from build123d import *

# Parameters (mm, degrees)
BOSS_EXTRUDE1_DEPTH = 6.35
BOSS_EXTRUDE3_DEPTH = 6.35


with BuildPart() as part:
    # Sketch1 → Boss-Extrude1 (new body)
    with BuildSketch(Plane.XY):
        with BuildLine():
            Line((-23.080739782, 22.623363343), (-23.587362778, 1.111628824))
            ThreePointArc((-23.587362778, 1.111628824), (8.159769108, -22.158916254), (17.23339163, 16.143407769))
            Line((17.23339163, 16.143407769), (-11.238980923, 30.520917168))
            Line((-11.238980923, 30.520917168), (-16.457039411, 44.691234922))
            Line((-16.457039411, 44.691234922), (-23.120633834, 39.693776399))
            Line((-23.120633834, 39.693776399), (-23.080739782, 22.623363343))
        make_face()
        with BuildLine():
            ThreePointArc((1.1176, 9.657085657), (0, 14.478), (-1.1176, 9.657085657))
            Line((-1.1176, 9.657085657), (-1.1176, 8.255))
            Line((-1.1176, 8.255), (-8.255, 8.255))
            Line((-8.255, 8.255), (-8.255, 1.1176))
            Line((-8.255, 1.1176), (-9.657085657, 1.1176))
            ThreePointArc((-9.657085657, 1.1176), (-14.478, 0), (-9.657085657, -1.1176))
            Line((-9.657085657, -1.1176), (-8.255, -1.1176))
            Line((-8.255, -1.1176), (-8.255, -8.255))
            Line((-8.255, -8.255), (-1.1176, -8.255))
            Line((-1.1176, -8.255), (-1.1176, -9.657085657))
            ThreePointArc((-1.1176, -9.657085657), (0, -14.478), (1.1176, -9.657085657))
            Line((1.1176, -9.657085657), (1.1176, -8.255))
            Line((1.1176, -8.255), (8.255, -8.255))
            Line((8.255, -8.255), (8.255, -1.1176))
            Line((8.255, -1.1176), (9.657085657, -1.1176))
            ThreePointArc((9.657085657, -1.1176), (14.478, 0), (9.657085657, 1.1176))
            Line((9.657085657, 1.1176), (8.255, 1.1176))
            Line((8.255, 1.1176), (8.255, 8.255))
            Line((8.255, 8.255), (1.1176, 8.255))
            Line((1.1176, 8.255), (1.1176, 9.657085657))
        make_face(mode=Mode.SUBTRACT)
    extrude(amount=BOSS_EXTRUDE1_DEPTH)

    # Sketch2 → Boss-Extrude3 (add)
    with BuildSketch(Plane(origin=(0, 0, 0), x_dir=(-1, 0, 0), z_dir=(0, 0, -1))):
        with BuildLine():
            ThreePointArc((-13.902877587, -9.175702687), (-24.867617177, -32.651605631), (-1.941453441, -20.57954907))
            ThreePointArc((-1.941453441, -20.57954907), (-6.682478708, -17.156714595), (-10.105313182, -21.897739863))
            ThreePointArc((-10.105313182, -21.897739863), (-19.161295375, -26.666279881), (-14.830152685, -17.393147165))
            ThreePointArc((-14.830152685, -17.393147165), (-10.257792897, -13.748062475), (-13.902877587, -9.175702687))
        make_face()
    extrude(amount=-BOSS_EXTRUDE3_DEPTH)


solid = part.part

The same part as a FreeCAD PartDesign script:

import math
import FreeCAD as App
import Part
import Sketcher
from FreeCAD import Vector
Q = App.Units.Quantity

doc = App.newDocument("Part")
params = doc.addObject("Spreadsheet::Sheet", "Params")
for row, (alias, value) in enumerate([
    ("sketch1_radius", "0.1 in"),
    ("sketch1_width", "0.281 in"),
    ("pad1_length", "0.25 in"),
    ("pad2_length", "0.25 in"),
], start=1):
    params.set(f"A{row}", alias)
    params.set(f"B{row}", "=" + value)
    params.setAlias(f"B{row}", alias)

body = doc.addObject("PartDesign::Body", "Body")

# Sketch on XY plane
sketch1 = body.newObject("Sketcher::SketchObject", "Sketch")
sketch1.AttachmentSupport = (doc.getObject("XY_Plane"), [""])
sketch1.MapMode = "FlatFace"
sketch1.addGeometry([
    Part.LineSegment(Vector(-23.1, 22.6, 0), Vector(-23.6, 1.1, 0)),  # 0
    Part.ArcOfCircle(Part.Circle(Vector(0, 0, 0), Vector(0, 0, 1), 23.6), math.radians(177), math.radians(403)),  # 1
    Part.LineSegment(Vector(17.2, 16.1, 0), Vector(-11.2, 30.5, 0)),  # 2
    Part.LineSegment(Vector(-11.2, 30.5, 0), Vector(-16.5, 44.7, 0)),  # 3
    Part.LineSegment(Vector(-16.5, 44.7, 0), Vector(-23.1, 39.7, 0)),  # 4
    Part.LineSegment(Vector(-23.1, 39.7, 0), Vector(-23.1, 22.6, 0)),  # 5
    Part.ArcOfCircle(Part.Circle(Vector(0, 11.9, 0), Vector(0, 0, 1), 2.5), math.radians(-64), math.radians(244)),  # 6
    Part.LineSegment(Vector(1.1, 9.7, 0), Vector(1.1, 8.3, 0)),  # 7
    Part.LineSegment(Vector(1.1, 8.3, 0), Vector(8.3, 8.3, 0)),  # 8
    Part.LineSegment(Vector(8.3, 8.3, 0), Vector(8.3, 1.1, 0)),  # 9
    Part.LineSegment(Vector(8.3, 1.1, 0), Vector(9.7, 1.1, 0)),  # 10
    Part.ArcOfCircle(Part.Circle(Vector(11.9, 0, 0), Vector(0, 0, 1), 2.5), math.radians(-154), math.radians(154)),  # 11
    Part.LineSegment(Vector(9.7, -1.1, 0), Vector(8.3, -1.1, 0)),  # 12
    Part.LineSegment(Vector(8.3, -1.1, 0), Vector(8.3, -8.3, 0)),  # 13
    Part.LineSegment(Vector(8.3, -8.3, 0), Vector(1.1, -8.3, 0)),  # 14
    Part.LineSegment(Vector(1.1, -8.3, 0), Vector(1.1, -9.7, 0)),  # 15
    Part.ArcOfCircle(Part.Circle(Vector(0, -11.9, 0), Vector(0, 0, 1), 2.5), math.radians(116), math.radians(424)),  # 16
    Part.LineSegment(Vector(-1.1, -9.7, 0), Vector(-1.1, -8.3, 0)),  # 17
    Part.LineSegment(Vector(-1.1, -8.3, 0), Vector(-8.3, -8.3, 0)),  # 18
    Part.LineSegment(Vector(-8.3, -8.3, 0), Vector(-8.3, -1.1, 0)),  # 19
    Part.LineSegment(Vector(-8.3, -1.1, 0), Vector(-9.7, -1.1, 0)),  # 20
    Part.ArcOfCircle(Part.Circle(Vector(-11.9, 0, 0), Vector(0, 0, 1), 2.5), math.radians(26), math.radians(334)),  # 21
    Part.LineSegment(Vector(-9.7, 1.1, 0), Vector(-8.3, 1.1, 0)),  # 22
    Part.LineSegment(Vector(-8.3, 1.1, 0), Vector(-8.3, 8.3, 0)),  # 23
    Part.LineSegment(Vector(-8.3, 8.3, 0), Vector(-1.1, 8.3, 0)),  # 24
    Part.LineSegment(Vector(-1.1, 8.3, 0), Vector(-1.1, 9.7, 0)),  # 25
], False)
sketch1.addConstraint([
    Sketcher.Constraint("Coincident", 0, 2, 1, 1),
    Sketcher.Constraint("Coincident", 1, 2, 2, 1),
    Sketcher.Constraint("Coincident", 2, 2, 3, 1),
    Sketcher.Constraint("Coincident", 3, 2, 4, 1),
    Sketcher.Constraint("Coincident", 4, 2, 5, 1),
    Sketcher.Constraint("Coincident", 5, 2, 0, 1),
    Sketcher.Constraint("Coincident", 6, 1, 7, 1),
    Sketcher.Constraint("Coincident", 7, 2, 8, 1),
    Sketcher.Constraint("Coincident", 8, 2, 9, 1),
    Sketcher.Constraint("Coincident", 9, 2, 10, 1),
    Sketcher.Constraint("Coincident", 10, 2, 11, 2),
    Sketcher.Constraint("Coincident", 11, 1, 12, 1),
    Sketcher.Constraint("Coincident", 12, 2, 13, 1),
    Sketcher.Constraint("Coincident", 13, 2, 14, 1),
    Sketcher.Constraint("Coincident", 14, 2, 15, 1),
    Sketcher.Constraint("Coincident", 15, 2, 16, 2),
    Sketcher.Constraint("Coincident", 16, 1, 17, 1),
    Sketcher.Constraint("Coincident", 17, 2, 18, 1),
    Sketcher.Constraint("Coincident", 18, 2, 19, 1),
    Sketcher.Constraint("Coincident", 19, 2, 20, 1),
    Sketcher.Constraint("Coincident", 20, 2, 21, 2),
    Sketcher.Constraint("Coincident", 21, 1, 22, 1),
    Sketcher.Constraint("Coincident", 22, 2, 23, 1),
    Sketcher.Constraint("Coincident", 23, 2, 24, 1),
    Sketcher.Constraint("Coincident", 24, 2, 25, 1),
    Sketcher.Constraint("Coincident", 25, 2, 6, 2),
    Sketcher.Constraint("Vertical", 7),
    Sketcher.Constraint("Horizontal", 8),
    Sketcher.Constraint("Vertical", 9),
    Sketcher.Constraint("Horizontal", 10),
    Sketcher.Constraint("Horizontal", 12),
    Sketcher.Constraint("Vertical", 13),
    Sketcher.Constraint("Horizontal", 14),
    Sketcher.Constraint("Vertical", 15),
    Sketcher.Constraint("Vertical", 17),
    Sketcher.Constraint("Horizontal", 18),
    Sketcher.Constraint("Vertical", 19),
    Sketcher.Constraint("Horizontal", 20),
    Sketcher.Constraint("Horizontal", 22),
    Sketcher.Constraint("Vertical", 23),
    Sketcher.Constraint("Horizontal", 24),
    Sketcher.Constraint("Vertical", 25),
    Sketcher.Constraint("Coincident", 1, 3, -1, 1),
    Sketcher.Constraint("Equal", 6, 11),
    Sketcher.Constraint("Equal", 11, 16),
    Sketcher.Constraint("Equal", 16, 21),
    Sketcher.Constraint("Symmetric", 6, 3, 16, 3, -1, 1),
    Sketcher.Constraint("Symmetric", 11, 3, 21, 3, -1, 1),
    Sketcher.Constraint("Symmetric", 7, 2, 17, 2, -1, 1),
    Sketcher.Constraint("Symmetric", 9, 2, 19, 2, -1, 1),
    Sketcher.Constraint("Symmetric", 12, 2, 22, 2, -1, 1),
    Sketcher.Constraint("Symmetric", 14, 2, 24, 2, -1, 1),
    Sketcher.Constraint("Symmetric", 15, 2, 16, 1, -2),
    Sketcher.Constraint("Symmetric", 13, 2, 18, 2, -2),
    Sketcher.Constraint("Symmetric", 11, 1, 20, 2, -2),
    Sketcher.Constraint("Equal", 22, 7),
    Sketcher.Constraint("Equal", 24, 9),
    Sketcher.Constraint("Radius", 6, Q("0.1 in")),
    Sketcher.Constraint("DistanceX", 8, 1, 8, 2, Q("0.281 in")),
    Sketcher.Constraint("DistanceY", -1, 1, 6, 3, Q("0.47 in")),
    Sketcher.Constraint("DistanceX", -1, 1, 11, 3, Q("0.47 in")),
    Sketcher.Constraint("DistanceX", -1, 1, 6, 1, Q("0.044 in")),
    Sketcher.Constraint("Radius", 1, Q("23.613543 mm")),
    Sketcher.Constraint("Distance", 0, Q("21.517699 mm")),
    Sketcher.Constraint("DistanceX", 5, 2, 3, 2, Q("6.6237 mm")),
    Sketcher.Constraint("Distance", 3, Q("15.100531 mm")),
    Sketcher.Constraint("Distance", 4, Q("8.329351 mm")),
    Sketcher.Constraint("Distance", 5, Q("17.07046 mm")),
    Sketcher.Constraint("DistanceY", -1, 1, 0, 2, Q("1.111629 mm")),
    Sketcher.Constraint("DistanceX", -1, 1, 1, 2, Q("17.233392 mm")),
    Sketcher.Constraint("DistanceX", 2, 2, -1, 1, Q("11.238981 mm")),
    Sketcher.Constraint("DistanceX", 3, 2, -1, 1, Q("16.457039 mm")),
    Sketcher.Constraint("DistanceY", 1, 2, 2, 2, Q("14.377509 mm")),
])
sketch1.setExpression("Constraints[57]", "Params.sketch1_radius")
sketch1.setExpression("Constraints[58]", "Params.sketch1_width")
pad1 = body.newObject("PartDesign::Pad", "Pad")
pad1.Profile = sketch1
pad1.setExpression("Length", "Params.pad1_length")

# Sketch on XY plane
sketch2 = body.newObject("Sketcher::SketchObject", "Sketch001")
sketch2.AttachmentSupport = (doc.getObject("XY_Plane"), [""])
sketch2.MapMode = "FlatFace"
sketch2.addGeometry([
    Part.ArcOfCircle(Part.Circle(Vector(15.4, -22.8, 0), Vector(0, 0, 1), 13.7), math.radians(171), math.radians(456)),
    Part.ArcOfCircle(Part.Circle(Vector(6, -21.2, 0), Vector(0, 0, 1), 4.1), math.radians(-9), math.radians(171)),
    Part.ArcOfCircle(Part.Circle(Vector(15.4, -22.8, 0), Vector(0, 0, 1), 5.4), math.radians(171), math.radians(456)),
    Part.ArcOfCircle(Part.Circle(Vector(14.4, -13.3, 0), Vector(0, 0, 1), 4.1), math.radians(96), math.radians(276)),
], False)
sketch2.addConstraint([
    Sketcher.Constraint("Tangent", 0, 1, 1, 2),
    Sketcher.Constraint("Tangent", 1, 1, 2, 1),
    Sketcher.Constraint("Tangent", 2, 2, 3, 2),
    Sketcher.Constraint("Tangent", 3, 1, 0, 2),
    Sketcher.Constraint("Coincident", 2, 3, 0, 3),
    Sketcher.Constraint("Radius", 0, Q("13.668901 mm")),
    Sketcher.Constraint("Radius", 1, Q("4.134798 mm")),
    Sketcher.Constraint("DistanceY", 0, 3, -1, 1, Q("0.896 in")),
    Sketcher.Constraint("DistanceX", -1, 1, 0, 3, Q("0.6077 in")),
    Sketcher.Constraint("DistanceX", 1, 1, 3, 3, Q("4.261202 mm")),
    Sketcher.Constraint("DistanceY", 0, 1, -1, 1, Q("20.579549 mm")),
])
pad2 = body.newObject("PartDesign::Pad", "Pad001")
pad2.Profile = sketch2
pad2.setExpression("Length", "Params.pad2_length")

doc.recompute()
